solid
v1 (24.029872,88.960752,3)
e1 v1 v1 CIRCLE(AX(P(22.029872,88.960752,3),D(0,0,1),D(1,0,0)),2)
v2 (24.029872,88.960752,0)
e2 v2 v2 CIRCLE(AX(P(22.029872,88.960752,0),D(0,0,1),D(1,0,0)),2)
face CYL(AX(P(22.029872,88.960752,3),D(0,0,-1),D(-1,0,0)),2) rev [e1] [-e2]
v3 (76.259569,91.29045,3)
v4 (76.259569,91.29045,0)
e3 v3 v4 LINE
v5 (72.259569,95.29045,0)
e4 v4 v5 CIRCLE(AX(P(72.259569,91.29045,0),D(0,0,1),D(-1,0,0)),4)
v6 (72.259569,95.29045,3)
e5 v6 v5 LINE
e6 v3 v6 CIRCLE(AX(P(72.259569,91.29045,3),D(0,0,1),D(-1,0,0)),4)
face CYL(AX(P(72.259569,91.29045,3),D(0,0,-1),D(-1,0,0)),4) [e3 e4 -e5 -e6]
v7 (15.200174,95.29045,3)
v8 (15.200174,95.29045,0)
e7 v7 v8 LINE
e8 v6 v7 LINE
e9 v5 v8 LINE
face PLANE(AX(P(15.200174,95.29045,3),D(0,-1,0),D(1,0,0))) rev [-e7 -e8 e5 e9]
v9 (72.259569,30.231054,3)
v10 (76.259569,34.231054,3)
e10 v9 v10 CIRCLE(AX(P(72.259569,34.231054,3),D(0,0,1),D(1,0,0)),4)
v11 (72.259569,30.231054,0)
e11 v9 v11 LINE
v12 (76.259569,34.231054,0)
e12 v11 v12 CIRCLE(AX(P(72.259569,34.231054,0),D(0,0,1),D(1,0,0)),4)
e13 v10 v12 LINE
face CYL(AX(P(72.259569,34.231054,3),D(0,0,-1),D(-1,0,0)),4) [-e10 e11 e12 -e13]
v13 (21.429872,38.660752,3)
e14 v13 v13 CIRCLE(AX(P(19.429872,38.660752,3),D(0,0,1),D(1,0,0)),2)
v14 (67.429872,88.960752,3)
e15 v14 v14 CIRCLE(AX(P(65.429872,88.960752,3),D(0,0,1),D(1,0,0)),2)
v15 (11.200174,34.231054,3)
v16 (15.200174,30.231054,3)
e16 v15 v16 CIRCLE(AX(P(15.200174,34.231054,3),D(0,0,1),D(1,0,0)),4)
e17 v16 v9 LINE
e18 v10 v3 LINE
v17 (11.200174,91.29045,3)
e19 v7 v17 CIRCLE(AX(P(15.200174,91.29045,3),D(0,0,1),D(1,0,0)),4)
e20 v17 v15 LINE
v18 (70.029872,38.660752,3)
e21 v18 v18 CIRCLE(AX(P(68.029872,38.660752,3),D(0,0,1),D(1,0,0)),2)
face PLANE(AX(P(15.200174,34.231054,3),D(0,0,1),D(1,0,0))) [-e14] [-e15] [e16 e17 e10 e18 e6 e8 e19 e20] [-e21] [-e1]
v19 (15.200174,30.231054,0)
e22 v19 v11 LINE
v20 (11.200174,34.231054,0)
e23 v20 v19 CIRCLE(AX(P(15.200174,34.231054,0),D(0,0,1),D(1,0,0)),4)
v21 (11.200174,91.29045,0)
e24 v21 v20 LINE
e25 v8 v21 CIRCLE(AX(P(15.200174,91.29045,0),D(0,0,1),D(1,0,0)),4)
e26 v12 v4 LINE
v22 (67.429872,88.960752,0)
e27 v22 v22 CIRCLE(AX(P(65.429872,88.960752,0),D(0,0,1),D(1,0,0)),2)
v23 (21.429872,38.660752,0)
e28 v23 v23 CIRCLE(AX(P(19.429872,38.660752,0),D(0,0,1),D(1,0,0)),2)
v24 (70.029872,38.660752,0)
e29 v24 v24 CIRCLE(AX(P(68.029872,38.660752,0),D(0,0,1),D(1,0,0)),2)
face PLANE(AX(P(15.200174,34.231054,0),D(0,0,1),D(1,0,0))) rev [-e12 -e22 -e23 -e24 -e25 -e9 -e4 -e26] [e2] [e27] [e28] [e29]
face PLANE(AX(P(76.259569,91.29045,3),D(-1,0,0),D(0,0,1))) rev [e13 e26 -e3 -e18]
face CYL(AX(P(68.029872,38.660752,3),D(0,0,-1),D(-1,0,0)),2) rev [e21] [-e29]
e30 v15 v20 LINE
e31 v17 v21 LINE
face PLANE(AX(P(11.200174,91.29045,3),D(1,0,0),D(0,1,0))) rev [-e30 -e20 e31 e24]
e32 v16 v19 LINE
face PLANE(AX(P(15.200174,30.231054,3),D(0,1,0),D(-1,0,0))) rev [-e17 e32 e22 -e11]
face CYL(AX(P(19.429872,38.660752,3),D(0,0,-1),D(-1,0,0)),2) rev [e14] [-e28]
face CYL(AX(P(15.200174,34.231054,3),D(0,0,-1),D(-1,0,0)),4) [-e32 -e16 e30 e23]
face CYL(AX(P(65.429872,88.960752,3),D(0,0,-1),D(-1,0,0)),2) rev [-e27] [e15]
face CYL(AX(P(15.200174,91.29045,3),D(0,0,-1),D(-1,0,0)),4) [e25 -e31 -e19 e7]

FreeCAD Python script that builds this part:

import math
import FreeCAD as App
import Part
import Sketcher
Q = App.Units.Quantity

doc = App.newDocument("Part")
body = doc.addObject("PartDesign::Body", "Body")

# Sketch on XY plane
sketch1 = doc.addObject("Sketcher::SketchObject", "Sketch")
body.addObject(sketch1)
sketch1.AttachmentSupport = (doc.XY_Plane, [""])
sketch1.MapMode = "FlatFace"
sketch1.addGeometry(Part.LineSegment(App.Vector(72.3, 95.3, 0), App.Vector(15.2, 95.3, 0)), False)
sketch1.addGeometry(Part.ArcOfCircle(Part.Circle(App.Vector(15.2, 91.3, 0), App.Vector(0, 0, 1), 4), math.radians(90), math.radians(180)), False)
sketch1.addGeometry(Part.LineSegment(App.Vector(11.2, 91.3, 0), App.Vector(11.2, 34.2, 0)), False)
sketch1.addGeometry(Part.ArcOfCircle(Part.Circle(App.Vector(15.2, 34.2, 0), App.Vector(0, 0, 1), 4), math.radians(-180), math.radians(-90)), False)
sketch1.addGeometry(Part.LineSegment(App.Vector(15.2, 30.2, 0), App.Vector(72.3, 30.2, 0)), False)
sketch1.addGeometry(Part.ArcOfCircle(Part.Circle(App.Vector(72.3, 34.2, 0), App.Vector(0, 0, 1), 4), math.radians(-90), math.radians(0)), False)
sketch1.addGeometry(Part.LineSegment(App.Vector(76.3, 34.2, 0), App.Vector(76.3, 91.3, 0)), False)
sketch1.addGeometry(Part.ArcOfCircle(Part.Circle(App.Vector(72.3, 91.3, 0), App.Vector(0, 0, 1), 4), math.radians(0), math.radians(90)), False)
sketch1.addGeometry(Part.Circle(App.Vector(68, 38.7, 0), App.Vector(0, 0, 1), 2), False)
sketch1.addGeometry(Part.Circle(App.Vector(19.4, 38.7, 0), App.Vector(0, 0, 1), 2), False)
sketch1.addGeometry(Part.Circle(App.Vector(65.4, 89, 0), App.Vector(0, 0, 1), 2), False)
sketch1.addGeometry(Part.Circle(App.Vector(22, 89, 0), App.Vector(0, 0, 1), 2), False)
sketch1.addConstraint(Sketcher.Constraint("Tangent", 0, 2, 1, 1))
sketch1.addConstraint(Sketcher.Constraint("Tangent", 1, 2, 2, 1))
sketch1.addConstraint(Sketcher.Constraint("Tangent", 2, 2, 3, 1))
sketch1.addConstraint(Sketcher.Constraint("Tangent", 3, 2, 4, 1))
sketch1.addConstraint(Sketcher.Constraint("Tangent", 4, 2, 5, 1))
sketch1.addConstraint(Sketcher.Constraint("Tangent", 5, 2, 6, 1))
sketch1.addConstraint(Sketcher.Constraint("Tangent", 6, 2, 7, 1))
sketch1.addConstraint(Sketcher.Constraint("Tangent", 7, 2, 0, 1))
sketch1.addConstraint(Sketcher.Constraint("Horizontal", 0))
sketch1.addConstraint(Sketcher.Constraint("Vertical", 2))
sketch1.addConstraint(Sketcher.Constraint("Horizontal", 4))
sketch1.addConstraint(Sketcher.Constraint("Vertical", 6))
sketch1.addConstraint(Sketcher.Constraint("Equal", 1, 3))
sketch1.addConstraint(Sketcher.Constraint("Equal", 3, 5))
sketch1.addConstraint(Sketcher.Constraint("Equal", 5, 7))
sketch1.addConstraint(Sketcher.Constraint("Equal", 8, 9))
sketch1.addConstraint(Sketcher.Constraint("Equal", 9, 10))
sketch1.addConstraint(Sketcher.Constraint("Equal", 10, 11))
sketch1.addConstraint(Sketcher.Constraint("Horizontal", 8, 3, 9, 3))
sketch1.addConstraint(Sketcher.Constraint("Horizontal", 10, 3, 11, 3))
sketch1.addConstraint(Sketcher.Constraint("Equal", 4, 2))
sketch1.addConstraint(Sketcher.Constraint("Diameter", 8, Q("4 mm")))
sketch1.addConstraint(Sketcher.Constraint("Radius", 1, Q("4 mm")))
sketch1.addConstraint(Sketcher.Constraint("DistanceX", 9, 3, 10, 3, Q("46 mm")))
sketch1.addConstraint(Sketcher.Constraint("DistanceX", 9, 3, 8, 3, Q("48.6 mm")))
sketch1.addConstraint(Sketcher.Constraint("DistanceY", 8, 3, 10, 3, Q("50.3 mm")))
sketch1.addConstraint(Sketcher.Constraint("DistanceX", 11, 3, 10, 3, Q("43.4 mm")))
sketch1.addConstraint(Sketcher.Constraint("DistanceX", 0, 2, 0, 1, Q("57.059396 mm")))
sketch1.addConstraint(Sketcher.Constraint("DistanceY", -1, 1, 1, 3, Q("91.29045 mm")))
sketch1.addConstraint(Sketcher.Constraint("DistanceX", -1, 1, 5, 3, Q("72.259569 mm")))
sketch1.addConstraint(Sketcher.Constraint("DistanceX", -1, 1, 8, 3, Q("68.029872 mm")))
sketch1.addConstraint(Sketcher.Constraint("DistanceY", -1, 1, 8, 3, Q("38.660752 mm")))
pad1 = doc.addObject("PartDesign::Pad", "Pad")
body.addObject(pad1)
pad1.Profile = sketch1
pad1.Length = 3

doc.recompute()
